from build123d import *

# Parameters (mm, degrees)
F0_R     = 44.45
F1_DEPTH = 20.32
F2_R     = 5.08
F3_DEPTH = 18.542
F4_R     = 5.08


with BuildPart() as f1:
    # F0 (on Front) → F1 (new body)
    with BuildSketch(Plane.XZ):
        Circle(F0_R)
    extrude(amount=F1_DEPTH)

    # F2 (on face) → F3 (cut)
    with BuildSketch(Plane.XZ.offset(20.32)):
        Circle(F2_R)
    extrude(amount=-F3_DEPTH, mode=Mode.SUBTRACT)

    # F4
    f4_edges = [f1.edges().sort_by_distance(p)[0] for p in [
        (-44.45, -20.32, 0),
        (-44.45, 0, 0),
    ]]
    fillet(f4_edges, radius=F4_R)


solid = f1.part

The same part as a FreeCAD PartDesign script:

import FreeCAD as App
import Part
import Sketcher
from FreeCAD import Vector
Q = App.Units.Quantity


def edges_at(feature, points):
    """Names of the edges that pass closest to the given points."""
    edges = feature.Shape.Edges
    near = lambda p: min(range(len(edges)), key=lambda i: edges[i].distToShape(Part.Vertex(*p))[0])
    return sorted({f"Edge{near(p) + 1}" for p in points})

doc = App.newDocument("Part")
params = doc.addObject("Spreadsheet::Sheet", "Params")
for row, (alias, value) in enumerate([
    ("sketch1_diameter", "3.5 in"),
    ("pad1_length", "0.8 in"),
    ("sketch2_diameter", "0.4 in"),
    ("pocket1_length", "0.73 in"),
    ("fillet_radius", "0.2 in"),
], start=1):
    params.set(f"A{row}", alias)
    params.set(f"B{row}", "=" + value)
    params.setAlias(f"B{row}", alias)

body = doc.addObject("PartDesign::Body", "Body")

sketch1 = doc.addObject("Sketcher::SketchObject", "Sketch")
body.addObject(sketch1)
sketch1.AttachmentSupport = (doc.XZ_Plane, [""])
sketch1.MapMode = "FlatFace"
sketch1.addGeometry(Part.Circle(Vector(0, 0, 0), Vector(0, 0, 1), 44), False)
sketch1.addConstraint([
    Sketcher.Constraint("Coincident", 0, 3, -1, 1),
    Sketcher.Constraint("Diameter", 0, Q("3.5 in")),
])
sketch1.setExpression("Constraints[1]", "Params.sketch1_diameter")
pad1 = doc.addObject("PartDesign::Pad", "Pad")
body.addObject(pad1)
pad1.Profile = sketch1
pad1.setExpression("Length", "Params.pad1_length")

sketch2 = doc.addObject("Sketcher::SketchObject", "Sketch001")
body.addObject(sketch2)
sketch2.AttachmentSupport = (doc.XZ_Plane, [""])
sketch2.MapMode = "FlatFace"
sketch2.AttachmentOffset = App.Placement(Vector(0, 0, 0.8 * 25.4), App.Rotation())
sketch2.addGeometry(Part.Circle(Vector(0, 0, 0), Vector(0, 0, 1), 5), False)
sketch2.addConstraint([
    Sketcher.Constraint("Coincident", 0, 3, -1, 1),
    Sketcher.Constraint("Diameter", 0, Q("0.4 in")),
])
sketch2.setExpression("Constraints[1]", "Params.sketch2_diameter")
pocket1 = doc.addObject("PartDesign::Pocket", "Pocket")
body.addObject(pocket1)
pocket1.Profile = sketch2
pocket1.setExpression("Length", "Params.pocket1_length")
doc.recompute()

fillet = doc.addObject("PartDesign::Fillet", "Fillet")
body.addObject(fillet)
fillet.Base = (pocket1, edges_at(pocket1, [(-44.45, -20.32, 0), (-44.45, 0, 0)]))
fillet.setExpression("Radius", "Params.fillet_radius")

doc.recompute()
